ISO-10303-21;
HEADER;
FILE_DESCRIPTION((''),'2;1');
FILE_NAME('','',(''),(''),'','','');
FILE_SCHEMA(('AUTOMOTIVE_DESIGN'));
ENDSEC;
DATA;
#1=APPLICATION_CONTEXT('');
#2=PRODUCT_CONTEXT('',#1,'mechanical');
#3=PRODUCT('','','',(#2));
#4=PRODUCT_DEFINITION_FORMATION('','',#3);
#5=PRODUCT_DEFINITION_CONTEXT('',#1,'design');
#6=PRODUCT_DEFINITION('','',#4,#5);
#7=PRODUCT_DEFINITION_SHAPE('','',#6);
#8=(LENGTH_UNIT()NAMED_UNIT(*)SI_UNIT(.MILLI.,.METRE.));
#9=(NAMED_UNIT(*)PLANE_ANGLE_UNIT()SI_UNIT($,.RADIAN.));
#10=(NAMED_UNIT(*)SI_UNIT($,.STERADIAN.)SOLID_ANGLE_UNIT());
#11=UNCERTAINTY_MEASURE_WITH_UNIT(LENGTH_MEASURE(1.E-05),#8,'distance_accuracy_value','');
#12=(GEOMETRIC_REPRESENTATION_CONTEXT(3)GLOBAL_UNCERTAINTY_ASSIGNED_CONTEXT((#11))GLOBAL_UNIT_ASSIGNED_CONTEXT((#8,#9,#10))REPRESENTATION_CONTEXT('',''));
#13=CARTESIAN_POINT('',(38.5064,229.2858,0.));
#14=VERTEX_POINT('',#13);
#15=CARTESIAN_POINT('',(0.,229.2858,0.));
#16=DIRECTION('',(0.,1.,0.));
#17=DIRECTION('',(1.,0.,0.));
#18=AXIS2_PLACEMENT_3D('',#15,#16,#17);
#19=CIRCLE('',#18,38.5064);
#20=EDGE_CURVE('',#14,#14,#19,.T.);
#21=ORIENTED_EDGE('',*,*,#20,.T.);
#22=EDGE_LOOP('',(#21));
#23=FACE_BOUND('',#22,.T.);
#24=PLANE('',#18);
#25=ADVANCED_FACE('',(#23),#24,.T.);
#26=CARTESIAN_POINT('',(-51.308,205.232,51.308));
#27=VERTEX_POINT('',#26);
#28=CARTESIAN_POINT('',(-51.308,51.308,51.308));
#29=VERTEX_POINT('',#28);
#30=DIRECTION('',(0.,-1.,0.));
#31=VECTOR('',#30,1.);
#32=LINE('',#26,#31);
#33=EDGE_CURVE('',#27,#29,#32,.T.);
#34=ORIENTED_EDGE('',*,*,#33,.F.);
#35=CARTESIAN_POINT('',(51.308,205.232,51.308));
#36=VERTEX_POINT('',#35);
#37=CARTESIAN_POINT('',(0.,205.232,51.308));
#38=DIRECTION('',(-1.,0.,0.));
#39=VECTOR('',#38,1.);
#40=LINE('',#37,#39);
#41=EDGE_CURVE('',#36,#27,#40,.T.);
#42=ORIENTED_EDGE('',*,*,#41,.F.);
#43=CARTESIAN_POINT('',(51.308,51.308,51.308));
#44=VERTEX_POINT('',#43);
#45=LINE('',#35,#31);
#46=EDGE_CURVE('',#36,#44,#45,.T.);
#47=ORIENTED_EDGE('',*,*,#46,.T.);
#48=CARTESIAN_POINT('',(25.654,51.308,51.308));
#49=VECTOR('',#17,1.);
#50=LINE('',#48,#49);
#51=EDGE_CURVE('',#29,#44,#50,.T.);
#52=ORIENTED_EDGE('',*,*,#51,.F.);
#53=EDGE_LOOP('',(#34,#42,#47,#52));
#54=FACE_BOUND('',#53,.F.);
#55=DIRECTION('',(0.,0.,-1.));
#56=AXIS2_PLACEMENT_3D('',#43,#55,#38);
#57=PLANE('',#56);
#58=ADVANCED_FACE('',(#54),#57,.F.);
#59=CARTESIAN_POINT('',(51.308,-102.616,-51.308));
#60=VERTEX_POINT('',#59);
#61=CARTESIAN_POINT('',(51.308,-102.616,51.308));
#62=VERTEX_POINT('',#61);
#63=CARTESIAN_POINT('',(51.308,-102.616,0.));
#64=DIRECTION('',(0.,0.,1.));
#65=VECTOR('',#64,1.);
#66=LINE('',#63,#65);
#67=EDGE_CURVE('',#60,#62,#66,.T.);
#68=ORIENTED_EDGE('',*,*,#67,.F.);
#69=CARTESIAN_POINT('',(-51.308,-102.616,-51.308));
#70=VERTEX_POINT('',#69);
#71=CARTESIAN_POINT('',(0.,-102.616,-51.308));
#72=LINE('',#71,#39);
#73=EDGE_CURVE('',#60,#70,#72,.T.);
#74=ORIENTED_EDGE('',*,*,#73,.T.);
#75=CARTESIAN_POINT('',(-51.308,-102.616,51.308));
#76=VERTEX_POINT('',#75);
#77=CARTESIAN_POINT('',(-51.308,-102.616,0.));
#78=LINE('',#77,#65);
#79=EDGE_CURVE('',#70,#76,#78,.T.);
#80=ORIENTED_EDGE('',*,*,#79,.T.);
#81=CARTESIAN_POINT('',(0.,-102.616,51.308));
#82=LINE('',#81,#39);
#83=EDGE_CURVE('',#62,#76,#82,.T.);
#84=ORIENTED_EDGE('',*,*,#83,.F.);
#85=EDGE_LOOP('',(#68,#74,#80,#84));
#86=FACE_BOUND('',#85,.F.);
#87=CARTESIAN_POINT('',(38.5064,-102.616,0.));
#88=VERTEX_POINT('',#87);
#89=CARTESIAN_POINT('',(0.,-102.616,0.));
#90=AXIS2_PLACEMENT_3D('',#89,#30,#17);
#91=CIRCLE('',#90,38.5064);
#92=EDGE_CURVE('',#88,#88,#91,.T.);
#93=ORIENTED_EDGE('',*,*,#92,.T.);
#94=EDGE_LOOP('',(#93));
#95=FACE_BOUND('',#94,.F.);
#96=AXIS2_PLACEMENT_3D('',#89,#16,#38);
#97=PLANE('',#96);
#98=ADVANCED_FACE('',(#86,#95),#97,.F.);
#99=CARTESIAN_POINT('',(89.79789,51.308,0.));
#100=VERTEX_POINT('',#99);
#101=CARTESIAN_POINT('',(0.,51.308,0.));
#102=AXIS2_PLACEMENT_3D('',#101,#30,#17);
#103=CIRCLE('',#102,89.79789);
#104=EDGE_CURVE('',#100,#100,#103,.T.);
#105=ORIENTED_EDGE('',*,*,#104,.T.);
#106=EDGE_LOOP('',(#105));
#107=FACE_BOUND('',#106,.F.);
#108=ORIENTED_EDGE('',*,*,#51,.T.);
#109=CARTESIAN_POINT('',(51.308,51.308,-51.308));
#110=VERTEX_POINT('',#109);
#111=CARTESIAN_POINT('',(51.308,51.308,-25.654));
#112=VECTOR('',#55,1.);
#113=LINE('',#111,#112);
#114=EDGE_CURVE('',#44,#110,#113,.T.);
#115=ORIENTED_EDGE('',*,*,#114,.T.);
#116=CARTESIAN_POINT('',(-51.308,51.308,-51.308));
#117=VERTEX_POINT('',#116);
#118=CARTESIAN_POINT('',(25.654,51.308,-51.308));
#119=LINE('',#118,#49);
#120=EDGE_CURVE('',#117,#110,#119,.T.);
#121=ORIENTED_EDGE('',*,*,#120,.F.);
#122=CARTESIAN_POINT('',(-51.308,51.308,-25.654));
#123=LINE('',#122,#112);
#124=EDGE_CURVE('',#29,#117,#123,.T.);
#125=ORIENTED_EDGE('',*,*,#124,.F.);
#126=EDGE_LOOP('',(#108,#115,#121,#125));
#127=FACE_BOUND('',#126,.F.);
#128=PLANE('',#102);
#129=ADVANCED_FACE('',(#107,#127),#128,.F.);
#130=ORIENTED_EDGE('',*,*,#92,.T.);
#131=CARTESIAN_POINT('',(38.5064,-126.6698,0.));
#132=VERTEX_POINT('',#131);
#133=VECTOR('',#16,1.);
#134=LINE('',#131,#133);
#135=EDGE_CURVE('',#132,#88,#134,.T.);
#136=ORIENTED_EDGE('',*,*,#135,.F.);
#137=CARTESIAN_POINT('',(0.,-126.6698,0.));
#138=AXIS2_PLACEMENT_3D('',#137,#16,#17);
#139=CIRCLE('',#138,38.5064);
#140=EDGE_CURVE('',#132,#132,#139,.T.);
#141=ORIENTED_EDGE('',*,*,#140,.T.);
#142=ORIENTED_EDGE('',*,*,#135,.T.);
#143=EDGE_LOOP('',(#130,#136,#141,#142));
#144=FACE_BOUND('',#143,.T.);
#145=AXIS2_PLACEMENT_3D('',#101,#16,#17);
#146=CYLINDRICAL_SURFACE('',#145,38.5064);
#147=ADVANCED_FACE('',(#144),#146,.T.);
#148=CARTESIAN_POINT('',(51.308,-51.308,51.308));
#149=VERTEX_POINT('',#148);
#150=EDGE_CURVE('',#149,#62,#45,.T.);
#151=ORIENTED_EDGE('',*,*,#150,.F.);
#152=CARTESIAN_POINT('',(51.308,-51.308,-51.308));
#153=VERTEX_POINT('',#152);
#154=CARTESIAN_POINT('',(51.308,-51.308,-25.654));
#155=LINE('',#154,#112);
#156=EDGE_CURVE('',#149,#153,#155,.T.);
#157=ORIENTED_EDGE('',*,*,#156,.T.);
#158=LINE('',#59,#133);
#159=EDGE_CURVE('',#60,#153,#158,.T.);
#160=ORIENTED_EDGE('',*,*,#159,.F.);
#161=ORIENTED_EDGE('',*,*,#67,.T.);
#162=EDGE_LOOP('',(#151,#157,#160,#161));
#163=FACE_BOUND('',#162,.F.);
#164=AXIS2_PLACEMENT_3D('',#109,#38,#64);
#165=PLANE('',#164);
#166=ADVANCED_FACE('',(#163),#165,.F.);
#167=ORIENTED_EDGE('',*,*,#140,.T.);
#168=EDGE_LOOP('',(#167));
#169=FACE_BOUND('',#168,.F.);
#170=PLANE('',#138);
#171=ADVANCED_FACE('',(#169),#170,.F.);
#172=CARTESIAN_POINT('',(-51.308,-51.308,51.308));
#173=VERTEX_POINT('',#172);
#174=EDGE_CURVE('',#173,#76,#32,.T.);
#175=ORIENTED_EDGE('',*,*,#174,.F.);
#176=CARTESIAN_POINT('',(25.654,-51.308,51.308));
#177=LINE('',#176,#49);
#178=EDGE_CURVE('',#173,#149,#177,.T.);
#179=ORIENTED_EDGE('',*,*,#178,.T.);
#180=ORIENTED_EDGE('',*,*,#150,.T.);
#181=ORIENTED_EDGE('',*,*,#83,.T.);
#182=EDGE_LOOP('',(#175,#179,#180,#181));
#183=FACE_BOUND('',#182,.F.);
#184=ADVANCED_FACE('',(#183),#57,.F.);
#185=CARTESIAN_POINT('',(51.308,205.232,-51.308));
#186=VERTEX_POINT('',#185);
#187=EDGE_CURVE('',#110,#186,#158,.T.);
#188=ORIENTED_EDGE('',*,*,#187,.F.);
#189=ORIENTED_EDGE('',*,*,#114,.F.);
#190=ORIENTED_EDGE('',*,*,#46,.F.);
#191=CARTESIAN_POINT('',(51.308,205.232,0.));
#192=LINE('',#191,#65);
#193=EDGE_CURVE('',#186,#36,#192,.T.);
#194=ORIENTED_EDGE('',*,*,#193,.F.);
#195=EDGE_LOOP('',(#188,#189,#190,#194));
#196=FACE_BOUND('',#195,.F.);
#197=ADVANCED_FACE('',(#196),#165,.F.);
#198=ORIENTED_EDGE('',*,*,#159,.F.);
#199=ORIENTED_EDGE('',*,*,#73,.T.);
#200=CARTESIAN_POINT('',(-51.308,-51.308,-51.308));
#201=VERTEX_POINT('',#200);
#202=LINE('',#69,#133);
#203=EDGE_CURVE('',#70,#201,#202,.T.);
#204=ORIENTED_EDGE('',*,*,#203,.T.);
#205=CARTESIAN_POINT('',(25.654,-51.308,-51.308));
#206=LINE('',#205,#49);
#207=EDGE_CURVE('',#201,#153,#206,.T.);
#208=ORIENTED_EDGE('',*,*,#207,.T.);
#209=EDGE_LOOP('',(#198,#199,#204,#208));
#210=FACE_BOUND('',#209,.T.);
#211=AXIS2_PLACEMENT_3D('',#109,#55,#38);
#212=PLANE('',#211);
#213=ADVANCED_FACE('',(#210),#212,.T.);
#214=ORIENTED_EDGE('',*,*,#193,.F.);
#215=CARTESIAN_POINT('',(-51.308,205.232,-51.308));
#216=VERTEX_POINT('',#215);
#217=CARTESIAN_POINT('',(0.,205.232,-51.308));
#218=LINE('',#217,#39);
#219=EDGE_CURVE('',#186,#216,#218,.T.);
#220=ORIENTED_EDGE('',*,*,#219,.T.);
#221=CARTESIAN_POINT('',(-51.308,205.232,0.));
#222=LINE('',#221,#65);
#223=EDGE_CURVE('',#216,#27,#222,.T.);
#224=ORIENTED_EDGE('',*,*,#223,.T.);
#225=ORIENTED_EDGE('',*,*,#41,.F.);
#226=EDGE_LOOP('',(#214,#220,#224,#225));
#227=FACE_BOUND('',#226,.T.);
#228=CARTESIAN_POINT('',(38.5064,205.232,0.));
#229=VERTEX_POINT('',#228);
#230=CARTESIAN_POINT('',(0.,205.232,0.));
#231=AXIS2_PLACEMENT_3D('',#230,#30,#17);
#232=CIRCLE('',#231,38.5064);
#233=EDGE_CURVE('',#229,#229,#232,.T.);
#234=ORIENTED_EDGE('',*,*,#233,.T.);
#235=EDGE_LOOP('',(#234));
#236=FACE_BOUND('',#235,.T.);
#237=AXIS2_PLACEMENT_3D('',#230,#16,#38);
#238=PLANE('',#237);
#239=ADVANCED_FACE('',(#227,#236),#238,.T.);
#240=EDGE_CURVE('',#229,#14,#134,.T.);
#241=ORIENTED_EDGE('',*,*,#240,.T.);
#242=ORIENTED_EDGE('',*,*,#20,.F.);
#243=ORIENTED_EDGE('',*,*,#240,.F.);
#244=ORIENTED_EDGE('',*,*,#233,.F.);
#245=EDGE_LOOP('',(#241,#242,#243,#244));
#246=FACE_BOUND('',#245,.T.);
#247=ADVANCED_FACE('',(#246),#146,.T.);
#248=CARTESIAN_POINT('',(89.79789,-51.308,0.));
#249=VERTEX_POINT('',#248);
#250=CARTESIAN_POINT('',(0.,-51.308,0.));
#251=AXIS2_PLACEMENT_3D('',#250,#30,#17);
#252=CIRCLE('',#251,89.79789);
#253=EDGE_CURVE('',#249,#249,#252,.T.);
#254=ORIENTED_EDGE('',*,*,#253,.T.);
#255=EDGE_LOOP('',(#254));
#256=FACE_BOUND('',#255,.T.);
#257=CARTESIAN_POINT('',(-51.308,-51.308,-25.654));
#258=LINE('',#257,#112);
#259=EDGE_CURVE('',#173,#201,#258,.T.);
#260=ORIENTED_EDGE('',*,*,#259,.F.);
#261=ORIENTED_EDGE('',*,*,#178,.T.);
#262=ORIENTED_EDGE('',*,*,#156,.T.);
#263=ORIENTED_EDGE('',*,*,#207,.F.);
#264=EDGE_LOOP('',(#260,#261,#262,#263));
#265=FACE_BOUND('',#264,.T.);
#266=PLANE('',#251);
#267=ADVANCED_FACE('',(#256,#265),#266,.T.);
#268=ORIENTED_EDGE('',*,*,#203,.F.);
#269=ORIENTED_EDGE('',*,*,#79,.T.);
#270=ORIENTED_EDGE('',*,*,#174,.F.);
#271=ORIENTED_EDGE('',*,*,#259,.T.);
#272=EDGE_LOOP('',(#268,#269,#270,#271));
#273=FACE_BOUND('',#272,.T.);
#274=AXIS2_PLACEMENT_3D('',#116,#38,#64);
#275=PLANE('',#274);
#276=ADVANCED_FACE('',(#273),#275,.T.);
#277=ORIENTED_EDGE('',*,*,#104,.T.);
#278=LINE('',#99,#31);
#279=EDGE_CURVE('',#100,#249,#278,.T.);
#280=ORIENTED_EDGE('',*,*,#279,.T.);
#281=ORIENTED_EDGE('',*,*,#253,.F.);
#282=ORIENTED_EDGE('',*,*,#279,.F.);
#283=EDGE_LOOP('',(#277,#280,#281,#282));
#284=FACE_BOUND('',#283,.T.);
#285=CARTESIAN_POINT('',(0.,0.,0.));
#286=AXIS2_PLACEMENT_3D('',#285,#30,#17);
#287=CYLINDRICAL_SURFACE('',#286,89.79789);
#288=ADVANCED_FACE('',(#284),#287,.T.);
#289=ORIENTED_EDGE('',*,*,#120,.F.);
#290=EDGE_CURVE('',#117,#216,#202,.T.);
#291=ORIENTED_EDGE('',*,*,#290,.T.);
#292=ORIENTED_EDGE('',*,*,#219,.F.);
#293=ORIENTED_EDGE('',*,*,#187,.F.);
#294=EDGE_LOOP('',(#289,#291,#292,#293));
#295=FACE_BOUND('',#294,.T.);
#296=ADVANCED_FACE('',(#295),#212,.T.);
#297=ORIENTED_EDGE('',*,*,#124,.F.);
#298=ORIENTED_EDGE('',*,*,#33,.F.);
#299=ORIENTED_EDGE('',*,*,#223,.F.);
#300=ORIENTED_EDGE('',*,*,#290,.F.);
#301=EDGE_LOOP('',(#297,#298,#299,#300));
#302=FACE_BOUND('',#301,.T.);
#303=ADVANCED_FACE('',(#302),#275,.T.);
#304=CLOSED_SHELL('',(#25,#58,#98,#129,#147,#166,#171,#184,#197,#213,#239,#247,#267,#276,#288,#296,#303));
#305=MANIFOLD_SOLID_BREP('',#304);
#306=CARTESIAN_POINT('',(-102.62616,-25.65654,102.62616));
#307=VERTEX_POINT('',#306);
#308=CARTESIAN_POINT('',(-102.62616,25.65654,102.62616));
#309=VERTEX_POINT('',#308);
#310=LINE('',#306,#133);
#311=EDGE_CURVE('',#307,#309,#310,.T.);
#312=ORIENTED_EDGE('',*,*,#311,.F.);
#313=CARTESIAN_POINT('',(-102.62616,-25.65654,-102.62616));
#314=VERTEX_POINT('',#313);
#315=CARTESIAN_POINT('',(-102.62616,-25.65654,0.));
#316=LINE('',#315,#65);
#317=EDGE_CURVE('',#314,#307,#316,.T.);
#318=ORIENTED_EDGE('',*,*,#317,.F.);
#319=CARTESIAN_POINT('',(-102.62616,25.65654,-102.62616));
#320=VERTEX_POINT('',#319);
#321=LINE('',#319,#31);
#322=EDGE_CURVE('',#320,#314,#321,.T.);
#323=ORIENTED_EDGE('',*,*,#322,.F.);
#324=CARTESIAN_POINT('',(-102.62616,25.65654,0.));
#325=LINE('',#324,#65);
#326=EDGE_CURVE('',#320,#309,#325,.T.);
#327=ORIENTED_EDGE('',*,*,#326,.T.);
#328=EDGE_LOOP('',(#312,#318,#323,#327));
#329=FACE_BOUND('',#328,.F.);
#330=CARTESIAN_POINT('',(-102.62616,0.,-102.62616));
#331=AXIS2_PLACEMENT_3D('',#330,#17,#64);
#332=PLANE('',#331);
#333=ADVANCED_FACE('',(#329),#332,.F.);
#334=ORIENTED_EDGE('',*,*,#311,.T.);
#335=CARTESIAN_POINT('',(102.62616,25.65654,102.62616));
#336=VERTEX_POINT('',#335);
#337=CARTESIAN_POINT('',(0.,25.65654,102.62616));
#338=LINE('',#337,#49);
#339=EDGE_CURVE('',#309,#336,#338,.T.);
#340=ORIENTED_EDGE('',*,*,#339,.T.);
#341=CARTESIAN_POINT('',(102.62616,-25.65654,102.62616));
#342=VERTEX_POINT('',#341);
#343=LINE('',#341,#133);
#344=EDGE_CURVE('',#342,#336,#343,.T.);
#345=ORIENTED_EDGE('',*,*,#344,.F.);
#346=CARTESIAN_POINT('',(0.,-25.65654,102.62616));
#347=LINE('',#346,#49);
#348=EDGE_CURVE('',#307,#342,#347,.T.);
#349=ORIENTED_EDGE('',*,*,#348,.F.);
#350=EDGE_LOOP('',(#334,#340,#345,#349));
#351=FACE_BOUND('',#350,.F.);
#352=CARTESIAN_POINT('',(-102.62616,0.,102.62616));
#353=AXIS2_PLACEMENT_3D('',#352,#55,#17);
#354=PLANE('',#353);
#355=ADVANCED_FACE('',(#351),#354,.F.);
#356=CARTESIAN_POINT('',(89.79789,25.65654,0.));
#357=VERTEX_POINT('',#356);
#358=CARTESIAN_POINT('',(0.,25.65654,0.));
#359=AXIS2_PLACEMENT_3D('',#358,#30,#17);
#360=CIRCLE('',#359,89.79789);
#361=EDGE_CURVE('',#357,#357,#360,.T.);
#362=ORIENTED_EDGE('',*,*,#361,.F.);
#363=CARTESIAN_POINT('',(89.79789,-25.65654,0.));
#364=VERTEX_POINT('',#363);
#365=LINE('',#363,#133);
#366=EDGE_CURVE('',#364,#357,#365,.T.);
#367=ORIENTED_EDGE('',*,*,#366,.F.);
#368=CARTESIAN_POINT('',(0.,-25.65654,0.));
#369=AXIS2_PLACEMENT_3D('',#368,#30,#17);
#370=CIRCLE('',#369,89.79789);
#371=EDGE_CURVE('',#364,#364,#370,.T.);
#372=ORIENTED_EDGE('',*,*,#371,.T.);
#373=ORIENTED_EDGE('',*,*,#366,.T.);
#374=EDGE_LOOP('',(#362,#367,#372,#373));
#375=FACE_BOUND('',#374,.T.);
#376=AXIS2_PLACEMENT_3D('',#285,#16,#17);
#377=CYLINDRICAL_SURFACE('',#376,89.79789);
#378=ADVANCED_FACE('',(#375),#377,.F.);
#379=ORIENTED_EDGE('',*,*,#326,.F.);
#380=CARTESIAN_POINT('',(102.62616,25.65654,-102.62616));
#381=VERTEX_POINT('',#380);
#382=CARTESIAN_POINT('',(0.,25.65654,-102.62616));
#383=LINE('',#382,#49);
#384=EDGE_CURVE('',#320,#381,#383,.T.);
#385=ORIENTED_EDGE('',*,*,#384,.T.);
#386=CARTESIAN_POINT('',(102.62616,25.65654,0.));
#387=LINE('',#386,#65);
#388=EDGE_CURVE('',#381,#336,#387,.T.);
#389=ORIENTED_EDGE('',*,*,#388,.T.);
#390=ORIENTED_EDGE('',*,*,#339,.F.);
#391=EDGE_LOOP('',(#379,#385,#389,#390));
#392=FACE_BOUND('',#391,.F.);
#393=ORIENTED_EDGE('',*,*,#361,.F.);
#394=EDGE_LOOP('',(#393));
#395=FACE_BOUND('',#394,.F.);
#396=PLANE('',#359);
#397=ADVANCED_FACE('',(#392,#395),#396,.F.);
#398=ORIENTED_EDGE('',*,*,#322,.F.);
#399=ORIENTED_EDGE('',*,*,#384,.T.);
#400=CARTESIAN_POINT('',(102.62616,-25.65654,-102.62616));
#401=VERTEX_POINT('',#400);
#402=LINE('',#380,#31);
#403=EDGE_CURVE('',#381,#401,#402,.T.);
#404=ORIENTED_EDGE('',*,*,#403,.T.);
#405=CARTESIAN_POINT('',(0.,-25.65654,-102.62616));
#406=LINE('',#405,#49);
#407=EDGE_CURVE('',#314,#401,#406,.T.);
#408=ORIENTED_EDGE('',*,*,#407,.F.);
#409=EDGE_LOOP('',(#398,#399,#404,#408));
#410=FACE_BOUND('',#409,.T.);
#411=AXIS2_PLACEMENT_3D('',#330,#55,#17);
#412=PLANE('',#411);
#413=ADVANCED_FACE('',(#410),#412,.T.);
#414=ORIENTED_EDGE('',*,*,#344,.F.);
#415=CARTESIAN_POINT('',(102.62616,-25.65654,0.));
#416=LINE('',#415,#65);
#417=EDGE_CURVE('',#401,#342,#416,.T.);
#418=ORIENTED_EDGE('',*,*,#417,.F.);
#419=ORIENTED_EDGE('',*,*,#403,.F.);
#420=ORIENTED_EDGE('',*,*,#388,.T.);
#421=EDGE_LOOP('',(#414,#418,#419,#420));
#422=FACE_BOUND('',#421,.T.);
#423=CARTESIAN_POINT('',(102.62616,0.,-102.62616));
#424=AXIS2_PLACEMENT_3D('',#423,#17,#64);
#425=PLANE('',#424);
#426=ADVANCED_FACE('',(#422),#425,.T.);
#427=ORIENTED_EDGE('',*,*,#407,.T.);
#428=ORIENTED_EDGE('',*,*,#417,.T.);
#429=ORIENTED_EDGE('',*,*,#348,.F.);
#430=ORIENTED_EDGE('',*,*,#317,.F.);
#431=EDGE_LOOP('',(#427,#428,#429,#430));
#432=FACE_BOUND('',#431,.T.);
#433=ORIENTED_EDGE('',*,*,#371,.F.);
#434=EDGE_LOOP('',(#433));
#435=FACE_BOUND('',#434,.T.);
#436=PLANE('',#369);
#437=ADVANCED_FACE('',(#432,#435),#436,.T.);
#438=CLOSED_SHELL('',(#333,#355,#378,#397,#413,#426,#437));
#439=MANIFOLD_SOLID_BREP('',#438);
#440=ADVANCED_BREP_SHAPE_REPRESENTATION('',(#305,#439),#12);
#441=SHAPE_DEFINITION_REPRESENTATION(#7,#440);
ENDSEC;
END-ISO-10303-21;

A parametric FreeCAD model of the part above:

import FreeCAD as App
import Part
import Sketcher
from FreeCAD import Vector
Q = App.Units.Quantity

doc = App.newDocument("Part")
params = doc.addObject("Spreadsheet::Sheet", "Params")
for row, (alias, value) in enumerate([
    ("pad1_length", "2.0202 in"),
    ("pad2_length", "4.04 in"),
    ("sketch3_diameter", "3.032 in"),
    ("sketch3_width", "4.04 in"),
    ("pad3_length", "12.12 in"),
    ("sketch4_diameter", "3.032 in"),
    ("pad4_length", "14.014 in"),
], start=1):
    params.set(f"A{row}", alias)
    params.set(f"B{row}", "=" + value)
    params.setAlias(f"B{row}", alias)

body = doc.addObject("PartDesign::Body", "Body")

sketch1 = doc.addObject("Sketcher::SketchObject", "Sketch")
body.addObject(sketch1)
sketch1.AttachmentSupport = (doc.XZ_Plane, [""])
sketch1.MapMode = "FlatFace"
sketch1.addGeometry([
    Part.LineSegment(Vector(-103, 103, 0), Vector(-103, -103, 0)),
    Part.LineSegment(Vector(-103, -103, 0), Vector(103, -103, 0)),
    Part.LineSegment(Vector(103, -103, 0), Vector(103, 103, 0)),
    Part.LineSegment(Vector(103, 103, 0), Vector(-103, 103, 0)),
    Part.Circle(Vector(0, 0, 0), Vector(0, 0, 1), 90),
], False)
sketch1.addConstraint([
    Sketcher.Constraint("Coincident", 0, 2, 1, 1),
    Sketcher.Constraint("Coincident", 1, 2, 2, 1),
    Sketcher.Constraint("Coincident", 2, 2, 3, 1),
    Sketcher.Constraint("Coincident", 3, 2, 0, 1),
    Sketcher.Constraint("Vertical", 0),
    Sketcher.Constraint("Horizontal", 1),
    Sketcher.Constraint("Vertical", 2),
    Sketcher.Constraint("Horizontal", 3),
    Sketcher.Constraint("Coincident", 4, 3, -1, 1),
    Sketcher.Constraint("Symmetric", 0, 2, 2, 2, -1, 1),
    Sketcher.Constraint("Equal", 3, 0),
    Sketcher.Constraint("Diameter", 4, Q("7.0707 in")),
    Sketcher.Constraint("DistanceX", 1, 1, 1, 2, Q("8.0808 in")),
])
pad1 = doc.addObject("PartDesign::Pad", "Pad")
body.addObject(pad1)
pad1.Profile = sketch1
pad1.setExpression("Length", "Params.pad1_length")
pad1.Midplane = True
body2 = doc.addObject("PartDesign::Body", "Body001")

sketch2 = doc.addObject("Sketcher::SketchObject", "Sketch001")
body2.addObject(sketch2)
sketch2.AttachmentSupport = (doc.getObject("XZ_Plane001"), [""])
sketch2.MapMode = "FlatFace"
sketch2.addGeometry(Part.Circle(Vector(0, 0, 0), Vector(0, 0, 1), 90), False)
sketch2.addConstraint([
    Sketcher.Constraint("Coincident", 0, 3, -1, 1),
    Sketcher.Constraint("Diameter", 0, Q("7.0707 in")),
])
pad2 = doc.addObject("PartDesign::Pad", "Pad001")
body2.addObject(pad2)
pad2.Profile = sketch2
pad2.setExpression("Length", "Params.pad2_length")
pad2.Midplane = True

sketch3 = doc.addObject("Sketcher::SketchObject", "Sketch002")
body2.addObject(sketch3)
sketch3.AttachmentSupport = (doc.getObject("XZ_Plane001"), [""])
sketch3.MapMode = "FlatFace"
sketch3.AttachmentOffset = App.Placement(Vector(0, 0, -2.02 * 25.4), App.Rotation())
sketch3.addGeometry([
    Part.LineSegment(Vector(51, 51, 0), Vector(51, -51, 0)),
    Part.LineSegment(Vector(51, -51, 0), Vector(-51, -51, 0)),
    Part.LineSegment(Vector(-51, -51, 0), Vector(-51, 51, 0)),
    Part.LineSegment(Vector(-51, 51, 0), Vector(51, 51, 0)),
    Part.Circle(Vector(0, 0, 0), Vector(0, 0, 1), 39),
], False)
sketch3.addConstraint([
    Sketcher.Constraint("Coincident", 0, 2, 1, 1),
    Sketcher.Constraint("Coincident", 1, 2, 2, 1),
    Sketcher.Constraint("Coincident", 2, 2, 3, 1),
    Sketcher.Constraint("Coincident", 3, 2, 0, 1),
    Sketcher.Constraint("Vertical", 0),
    Sketcher.Constraint("Horizontal", 1),
    Sketcher.Constraint("Vertical", 2),
    Sketcher.Constraint("Horizontal", 3),
    Sketcher.Constraint("Coincident", 4, 3, -1, 1),
    Sketcher.Constraint("Symmetric", 0, 2, 2, 2, -1, 1),
    Sketcher.Constraint("Equal", 3, 0),
    Sketcher.Constraint("Diameter", 4, Q("3.032 in")),
    Sketcher.Constraint("DistanceX", 1, 2, 1, 1, Q("4.04 in")),
])
sketch3.setExpression("Constraints[11]", "Params.sketch3_diameter")
sketch3.setExpression("Constraints[12]", "Params.sketch3_width")
pad3 = doc.addObject("PartDesign::Pad", "Pad002")
body2.addObject(pad3)
pad3.Profile = sketch3
pad3.setExpression("Length", "Params.pad3_length")
pad3.Midplane = True

sketch4 = doc.addObject("Sketcher::SketchObject", "Sketch003")
body2.addObject(sketch4)
sketch4.AttachmentSupport = (doc.getObject("XZ_Plane001"), [""])
sketch4.MapMode = "FlatFace"
sketch4.AttachmentOffset = App.Placement(Vector(0, 0, -2.02 * 25.4), App.Rotation())
sketch4.addGeometry(Part.Circle(Vector(0, 0, 0), Vector(0, 0, 1), 39), False)
sketch4.addConstraint([
    Sketcher.Constraint("Coincident", 0, 3, -1, 1),
    Sketcher.Constraint("Diameter", 0, Q("3.032 in")),
])
sketch4.setExpression("Constraints[1]", "Params.sketch4_diameter")
pad4 = doc.addObject("PartDesign::Pad", "Pad003")
body2.addObject(pad4)
pad4.Profile = sketch4
pad4.setExpression("Length", "Params.pad4_length")
pad4.Midplane = True

doc.recompute()
